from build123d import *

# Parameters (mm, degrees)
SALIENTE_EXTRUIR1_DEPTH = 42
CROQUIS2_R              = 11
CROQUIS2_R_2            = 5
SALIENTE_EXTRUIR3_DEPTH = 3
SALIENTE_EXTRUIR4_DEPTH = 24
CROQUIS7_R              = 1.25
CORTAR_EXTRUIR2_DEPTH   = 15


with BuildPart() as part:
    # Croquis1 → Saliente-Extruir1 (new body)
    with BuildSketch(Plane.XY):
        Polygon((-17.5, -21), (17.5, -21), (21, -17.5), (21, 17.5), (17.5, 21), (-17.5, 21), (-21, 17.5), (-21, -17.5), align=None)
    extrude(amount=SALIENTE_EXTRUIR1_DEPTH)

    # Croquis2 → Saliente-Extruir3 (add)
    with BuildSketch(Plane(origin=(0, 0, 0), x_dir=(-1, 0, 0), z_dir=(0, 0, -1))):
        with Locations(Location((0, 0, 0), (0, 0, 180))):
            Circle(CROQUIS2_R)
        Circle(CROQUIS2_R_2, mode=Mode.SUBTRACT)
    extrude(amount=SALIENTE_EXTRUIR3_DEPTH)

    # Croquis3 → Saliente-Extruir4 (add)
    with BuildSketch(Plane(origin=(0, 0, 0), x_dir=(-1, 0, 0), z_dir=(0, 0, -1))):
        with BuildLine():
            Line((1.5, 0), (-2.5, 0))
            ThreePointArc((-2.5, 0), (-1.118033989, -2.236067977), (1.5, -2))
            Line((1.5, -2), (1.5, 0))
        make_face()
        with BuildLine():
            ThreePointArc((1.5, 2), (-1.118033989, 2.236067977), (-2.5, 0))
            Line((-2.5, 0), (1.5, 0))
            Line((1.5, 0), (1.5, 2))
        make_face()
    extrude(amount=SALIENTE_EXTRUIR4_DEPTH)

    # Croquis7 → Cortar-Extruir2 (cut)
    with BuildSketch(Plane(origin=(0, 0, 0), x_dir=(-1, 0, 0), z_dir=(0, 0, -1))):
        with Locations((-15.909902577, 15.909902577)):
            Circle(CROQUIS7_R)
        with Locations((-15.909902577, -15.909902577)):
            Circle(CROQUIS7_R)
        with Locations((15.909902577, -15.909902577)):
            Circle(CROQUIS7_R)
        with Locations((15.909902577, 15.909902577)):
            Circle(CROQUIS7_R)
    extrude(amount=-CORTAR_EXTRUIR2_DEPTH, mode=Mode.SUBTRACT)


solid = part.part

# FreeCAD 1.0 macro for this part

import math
import FreeCAD as App
import Part
import Sketcher
from FreeCAD import Vector


def add_polygon(sketch, points):
    """Adds a closed chain of lines whose ends are joined by coincident constraints."""
    first, n = sketch.GeometryCount, len(points)
    for a, b in zip(points, points[1:] + points[:1]):
        sketch.addGeometry(Part.LineSegment(App.Vector(*a, 0), App.Vector(*b, 0)), False)
    for i in range(n):
        sketch.addConstraint(Sketcher.Constraint("Coincident", first + i, 2, first + (i + 1) % n, 1))

doc = App.newDocument("Part")
body = doc.addObject("PartDesign::Body", "Body")

sketch1 = body.newObject("Sketcher::SketchObject", "Sketch")
sketch1.AttachmentSupport = (doc.getObject("XY_Plane"), [""])
sketch1.MapMode = "FlatFace"
add_polygon(sketch1, [(-17.5, -21), (17.5, -21), (21, -17.5), (21, 17.5), (17.5, 21), (-17.5, 21), (-21, 17.5), (-21, -17.5)])
sketch1.addConstraint([
    Sketcher.Constraint("Horizontal", 0),
    Sketcher.Constraint("Vertical", 2),
    Sketcher.Constraint("Horizontal", 4),
    Sketcher.Constraint("Vertical", 6),
    Sketcher.Constraint("Symmetric", 0, 2, 4, 2, -1, 1),
    Sketcher.Constraint("Symmetric", 1, 2, 5, 2, -1, 1),
    Sketcher.Constraint("Perpendicular", 1, 3),
    Sketcher.Constraint("Perpendicular", 5, 7),
    Sketcher.Constraint("Horizontal", 2, 2, 5, 2),
    Sketcher.Constraint("Horizontal", 1, 2, 6, 2),
    Sketcher.Constraint("Vertical", 0, 2, 3, 2),
    Sketcher.Constraint("Equal", 4, 2),
    Sketcher.Constraint("DistanceX", 0, 1, 0, 2, 35.0),
    Sketcher.Constraint("DistanceY", 0, 2, -1, 1, 21.0),
])
pad1 = body.newObject("PartDesign::Pad", "Pad")
pad1.Profile = sketch1
pad1.Length = 42

sketch2 = body.newObject("Sketcher::SketchObject", "Sketch001")
sketch2.AttachmentSupport = (doc.getObject("XY_Plane"), [""])
sketch2.MapMode = "FlatFace"
sketch2.addGeometry([
    Part.Circle(Vector(0, 0, 0), Vector(0, 0, 1), 11),
    Part.Circle(Vector(0, 0, 0), Vector(0, 0, 1), 5),
], False)
sketch2.addConstraint([
    Sketcher.Constraint("Coincident", 0, 3, -1, 1),
    Sketcher.Constraint("Coincident", 1, 3, -1, 1),
    Sketcher.Constraint("Diameter", 0, 22.0),
    Sketcher.Constraint("Diameter", 1, 10.0),
])
pad2 = body.newObject("PartDesign::Pad", "Pad001")
pad2.Profile = sketch2
pad2.Length = 3
pad2.Reversed = True

sketch3 = body.newObject("Sketcher::SketchObject", "Sketch002")
sketch3.AttachmentSupport = (doc.getObject("XY_Plane"), [""])
sketch3.MapMode = "FlatFace"
sketch3.addGeometry([
    Part.ArcOfCircle(Part.Circle(Vector(0, 0, 0), Vector(0, 0, 1), 2.5), math.radians(-127), math.radians(0)),
    Part.LineSegment(Vector(-1.5, -2, 0), Vector(-1.5, 2, 0)),
    Part.ArcOfCircle(Part.Circle(Vector(0, 0, 0), Vector(0, 0, 1), 2.5), math.radians(0), math.radians(127)),
], False)
sketch3.addConstraint([
    Sketcher.Constraint("Coincident", 0, 1, 1, 1),
    Sketcher.Constraint("Coincident", 1, 2, 2, 2),
    Sketcher.Constraint("Tangent", 2, 1, 0, 2),
    Sketcher.Constraint("Vertical", 1),
    Sketcher.Constraint("Coincident", 0, 3, -1, 1),
    Sketcher.Constraint("Equal", 0, 2),
    Sketcher.Constraint("PointOnObject", 2, 1, -1),
    Sketcher.Constraint("Radius", 0, 2.5),
    Sketcher.Constraint("DistanceY", 1, 1, 1, 2, 4.0),
])
pad3 = body.newObject("PartDesign::Pad", "Pad002")
pad3.Profile = sketch3
pad3.Length = 24
pad3.Reversed = True

sketch4 = body.newObject("Sketcher::SketchObject", "Sketch003")
sketch4.AttachmentSupport = (doc.getObject("XY_Plane"), [""])
sketch4.MapMode = "FlatFace"
sketch4.addGeometry([
    Part.Circle(Vector(15.9, 15.9, 0), Vector(0, 0, 1), 1.2),
    Part.Circle(Vector(15.9, -15.9, 0), Vector(0, 0, 1), 1.2),
    Part.Circle(Vector(-15.9, -15.9, 0), Vector(0, 0, 1), 1.2),
    Part.Circle(Vector(-15.9, 15.9, 0), Vector(0, 0, 1), 1.2),
], False)
sketch4.addConstraint([
    Sketcher.Constraint("Equal", 0, 1),
    Sketcher.Constraint("Equal", 1, 2),
    Sketcher.Constraint("Equal", 2, 3),
    Sketcher.Constraint("Symmetric", 0, 3, 2, 3, -1, 1),
    Sketcher.Constraint("Symmetric", 1, 3, 3, 3, -1, 1),
    Sketcher.Constraint("Symmetric", 1, 3, 2, 3, -2),
    Sketcher.Constraint("Diameter", 0, 2.5),
    Sketcher.Constraint("DistanceX", -1, 1, 0, 3, 15.909903),
    Sketcher.Constraint("DistanceY", -1, 1, 0, 3, 15.909903),
])
pocket1 = body.newObject("PartDesign::Pocket", "Pocket")
pocket1.Profile = sketch4
pocket1.Length = 15
pocket1.Reversed = True

doc.recompute()
